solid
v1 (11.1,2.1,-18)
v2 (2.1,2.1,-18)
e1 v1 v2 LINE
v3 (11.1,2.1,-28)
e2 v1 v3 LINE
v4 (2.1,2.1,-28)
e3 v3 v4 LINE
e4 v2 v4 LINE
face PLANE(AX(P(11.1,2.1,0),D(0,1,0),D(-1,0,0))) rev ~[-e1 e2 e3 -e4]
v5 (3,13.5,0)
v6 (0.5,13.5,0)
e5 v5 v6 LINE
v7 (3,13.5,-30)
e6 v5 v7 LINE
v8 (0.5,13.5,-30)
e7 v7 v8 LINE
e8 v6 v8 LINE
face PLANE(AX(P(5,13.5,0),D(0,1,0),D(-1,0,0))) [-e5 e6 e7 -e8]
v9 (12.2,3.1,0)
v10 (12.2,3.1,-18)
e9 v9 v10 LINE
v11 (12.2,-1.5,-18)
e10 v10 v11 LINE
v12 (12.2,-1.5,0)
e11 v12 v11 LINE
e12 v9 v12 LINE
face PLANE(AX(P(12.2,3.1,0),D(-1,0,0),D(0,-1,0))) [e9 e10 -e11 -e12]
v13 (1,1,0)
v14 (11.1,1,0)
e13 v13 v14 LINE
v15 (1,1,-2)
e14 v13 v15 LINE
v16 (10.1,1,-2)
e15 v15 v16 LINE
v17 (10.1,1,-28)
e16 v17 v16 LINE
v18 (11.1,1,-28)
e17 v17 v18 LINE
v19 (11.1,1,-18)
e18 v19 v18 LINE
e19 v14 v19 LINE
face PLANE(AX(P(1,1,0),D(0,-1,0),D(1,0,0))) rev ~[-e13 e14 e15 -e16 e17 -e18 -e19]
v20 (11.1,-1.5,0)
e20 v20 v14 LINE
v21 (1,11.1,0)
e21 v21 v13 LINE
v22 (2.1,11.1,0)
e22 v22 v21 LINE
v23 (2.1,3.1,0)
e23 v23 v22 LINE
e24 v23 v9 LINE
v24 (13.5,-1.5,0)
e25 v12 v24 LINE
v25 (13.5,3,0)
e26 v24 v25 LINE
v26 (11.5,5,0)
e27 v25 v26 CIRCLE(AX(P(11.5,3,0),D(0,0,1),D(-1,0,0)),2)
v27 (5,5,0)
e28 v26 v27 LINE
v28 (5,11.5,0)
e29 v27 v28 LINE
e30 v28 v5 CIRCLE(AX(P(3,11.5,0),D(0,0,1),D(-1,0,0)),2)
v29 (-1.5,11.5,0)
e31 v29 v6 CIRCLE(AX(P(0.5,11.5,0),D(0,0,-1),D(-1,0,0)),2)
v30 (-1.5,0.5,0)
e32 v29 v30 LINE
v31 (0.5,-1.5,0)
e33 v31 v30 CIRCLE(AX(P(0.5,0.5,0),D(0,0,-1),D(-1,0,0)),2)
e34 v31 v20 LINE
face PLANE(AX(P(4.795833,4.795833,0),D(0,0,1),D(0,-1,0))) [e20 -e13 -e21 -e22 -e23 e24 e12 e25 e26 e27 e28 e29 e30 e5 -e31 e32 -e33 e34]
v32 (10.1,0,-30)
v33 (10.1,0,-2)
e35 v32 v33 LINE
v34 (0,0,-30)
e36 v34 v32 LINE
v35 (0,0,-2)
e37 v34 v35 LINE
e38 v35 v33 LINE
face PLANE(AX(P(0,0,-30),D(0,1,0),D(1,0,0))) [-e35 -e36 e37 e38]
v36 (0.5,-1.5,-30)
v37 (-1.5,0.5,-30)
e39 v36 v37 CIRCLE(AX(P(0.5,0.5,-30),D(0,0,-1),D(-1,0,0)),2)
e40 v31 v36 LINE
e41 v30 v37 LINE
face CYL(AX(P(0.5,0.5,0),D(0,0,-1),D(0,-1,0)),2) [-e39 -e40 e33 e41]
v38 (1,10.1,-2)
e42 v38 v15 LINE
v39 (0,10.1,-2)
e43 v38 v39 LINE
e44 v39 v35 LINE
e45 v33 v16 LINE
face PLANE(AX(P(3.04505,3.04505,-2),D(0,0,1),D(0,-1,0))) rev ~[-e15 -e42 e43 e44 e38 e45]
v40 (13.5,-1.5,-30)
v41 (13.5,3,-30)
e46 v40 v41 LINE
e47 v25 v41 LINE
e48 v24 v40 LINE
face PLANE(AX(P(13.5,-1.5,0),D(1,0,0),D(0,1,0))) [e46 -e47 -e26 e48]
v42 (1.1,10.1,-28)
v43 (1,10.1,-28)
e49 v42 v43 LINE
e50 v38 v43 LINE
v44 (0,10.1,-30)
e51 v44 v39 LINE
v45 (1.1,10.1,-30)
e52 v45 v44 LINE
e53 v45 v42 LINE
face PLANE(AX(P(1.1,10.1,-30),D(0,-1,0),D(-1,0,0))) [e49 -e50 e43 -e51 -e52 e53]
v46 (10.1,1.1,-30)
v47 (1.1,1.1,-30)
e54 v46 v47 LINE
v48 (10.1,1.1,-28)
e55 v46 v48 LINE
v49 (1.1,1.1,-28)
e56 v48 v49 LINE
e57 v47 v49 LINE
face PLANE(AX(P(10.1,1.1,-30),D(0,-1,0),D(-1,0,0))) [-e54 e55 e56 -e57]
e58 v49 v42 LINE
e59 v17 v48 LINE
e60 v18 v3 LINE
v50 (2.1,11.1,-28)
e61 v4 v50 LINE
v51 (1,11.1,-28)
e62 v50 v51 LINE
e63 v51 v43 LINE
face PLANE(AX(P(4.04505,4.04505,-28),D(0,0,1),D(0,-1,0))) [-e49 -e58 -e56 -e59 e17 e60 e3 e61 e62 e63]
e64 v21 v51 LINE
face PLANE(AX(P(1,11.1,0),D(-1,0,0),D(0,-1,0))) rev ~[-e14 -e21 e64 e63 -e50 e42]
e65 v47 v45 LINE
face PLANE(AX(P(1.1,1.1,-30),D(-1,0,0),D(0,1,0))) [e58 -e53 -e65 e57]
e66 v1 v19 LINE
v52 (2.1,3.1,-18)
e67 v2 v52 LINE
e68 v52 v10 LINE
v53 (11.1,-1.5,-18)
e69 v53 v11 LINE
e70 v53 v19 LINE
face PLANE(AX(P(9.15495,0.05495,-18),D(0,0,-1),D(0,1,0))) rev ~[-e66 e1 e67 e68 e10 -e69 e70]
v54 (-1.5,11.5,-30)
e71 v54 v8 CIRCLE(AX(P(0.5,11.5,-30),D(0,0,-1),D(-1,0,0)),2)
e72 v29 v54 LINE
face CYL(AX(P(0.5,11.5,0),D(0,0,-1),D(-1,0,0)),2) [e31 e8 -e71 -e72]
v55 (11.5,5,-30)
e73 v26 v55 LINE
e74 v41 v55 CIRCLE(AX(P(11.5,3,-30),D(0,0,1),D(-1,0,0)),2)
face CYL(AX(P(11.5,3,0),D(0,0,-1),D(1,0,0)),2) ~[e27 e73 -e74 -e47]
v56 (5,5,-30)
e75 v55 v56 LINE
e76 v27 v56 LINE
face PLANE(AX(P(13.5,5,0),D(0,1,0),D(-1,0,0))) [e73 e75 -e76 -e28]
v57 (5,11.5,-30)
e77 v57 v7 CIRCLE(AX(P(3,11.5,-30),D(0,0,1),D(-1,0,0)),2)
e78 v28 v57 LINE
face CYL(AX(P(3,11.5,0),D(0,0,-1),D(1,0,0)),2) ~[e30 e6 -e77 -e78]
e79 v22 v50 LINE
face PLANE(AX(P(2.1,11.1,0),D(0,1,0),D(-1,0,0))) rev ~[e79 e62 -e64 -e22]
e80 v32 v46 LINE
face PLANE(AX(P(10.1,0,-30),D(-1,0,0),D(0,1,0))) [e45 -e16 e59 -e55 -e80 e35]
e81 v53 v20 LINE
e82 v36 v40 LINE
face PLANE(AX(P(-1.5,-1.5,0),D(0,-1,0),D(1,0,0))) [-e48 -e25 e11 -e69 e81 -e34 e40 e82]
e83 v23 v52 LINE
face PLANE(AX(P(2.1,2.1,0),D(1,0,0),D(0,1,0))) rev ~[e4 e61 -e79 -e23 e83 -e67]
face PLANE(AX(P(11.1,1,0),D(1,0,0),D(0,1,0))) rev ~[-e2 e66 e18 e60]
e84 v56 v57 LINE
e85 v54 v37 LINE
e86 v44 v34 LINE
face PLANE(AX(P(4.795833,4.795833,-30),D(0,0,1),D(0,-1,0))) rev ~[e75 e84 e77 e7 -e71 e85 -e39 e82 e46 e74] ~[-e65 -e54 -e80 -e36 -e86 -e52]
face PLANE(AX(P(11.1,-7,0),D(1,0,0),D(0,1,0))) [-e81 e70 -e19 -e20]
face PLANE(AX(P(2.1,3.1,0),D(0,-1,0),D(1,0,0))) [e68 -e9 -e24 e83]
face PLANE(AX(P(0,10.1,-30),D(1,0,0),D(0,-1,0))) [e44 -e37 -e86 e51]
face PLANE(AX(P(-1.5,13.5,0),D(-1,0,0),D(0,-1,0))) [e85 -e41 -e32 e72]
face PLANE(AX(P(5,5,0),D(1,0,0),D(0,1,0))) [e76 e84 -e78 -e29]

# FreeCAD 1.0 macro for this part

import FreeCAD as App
import Part
import Sketcher
from FreeCAD import Vector


def edges_at(feature, points):
    """Names of the edges that pass closest to the given points."""
    edges = feature.Shape.Edges
    near = lambda p: min(range(len(edges)), key=lambda i: edges[i].distToShape(Part.Vertex(*p))[0])
    return sorted({f"Edge{near(p) + 1}" for p in points})


def add_polygon(sketch, points):
    """Adds a closed chain of lines whose ends are joined by coincident constraints."""
    first, n = sketch.GeometryCount, len(points)
    for a, b in zip(points, points[1:] + points[:1]):
        sketch.addGeometry(Part.LineSegment(App.Vector(*a, 0), App.Vector(*b, 0)), False)
    for i in range(n):
        sketch.addConstraint(Sketcher.Constraint("Coincident", first + i, 2, first + (i + 1) % n, 1))

doc = App.newDocument("Part")
params = doc.addObject("Spreadsheet::Sheet", "Params")
for row, (alias, value) in enumerate([
    ("sketch1_width", "15 mm"),
    ("sketch1_width2", "8.5 mm"),
    ("pad1_length", "30 mm"),
    ("sketch2_width", "9 mm"),
    ("sketch2_width2", "1.1 mm"),
    ("pocket1_length", "28 mm"),
    ("sketch3_width", "9 mm"),
    ("sketch3_width2", "1.1 mm"),
    ("pocket2_length", "28 mm"),
    ("sketch4_width", "9 mm"),
    ("sketch4_width2", "1.1 mm"),
    ("pocket3_length", "18 mm"),
    ("fillet_radius", "2 mm"),
], start=1):
    params.set(f"A{row}", alias)
    params.set(f"B{row}", "=" + value)
    params.setAlias(f"B{row}", alias)

body = doc.addObject("PartDesign::Body", "Body")

sketch1 = doc.addObject("Sketcher::SketchObject", "Sketch")
body.addObject(sketch1)
sketch1.AttachmentSupport = (doc.XY_Plane, [""])
sketch1.MapMode = "FlatFace"
add_polygon(sketch1, [(13.5, 5), (5, 5), (5, 13.5), (-1.5, 13.5), (-1.5, -1.5), (13.5, -1.5)])
sketch1.addConstraint(Sketcher.Constraint("Horizontal", 0))
sketch1.addConstraint(Sketcher.Constraint("Vertical", 1))
sketch1.addConstraint(Sketcher.Constraint("Horizontal", 2))
sketch1.addConstraint(Sketcher.Constraint("Vertical", 3))
sketch1.addConstraint(Sketcher.Constraint("Horizontal", 4))
sketch1.addConstraint(Sketcher.Constraint("Vertical", 5))
sketch1.addConstraint(Sketcher.Constraint("Equal", 0, 1))
sketch1.addConstraint(Sketcher.Constraint("Equal", 4, 3))
sketch1.addConstraint(Sketcher.Constraint("DistanceX", 4, 1, 4, 2, 15.0))
sketch1.addConstraint(Sketcher.Constraint("DistanceX", 0, 2, 0, 1, 8.5))
sketch1.addConstraint(Sketcher.Constraint("DistanceX", -1, 1, 0, 2, 5.0))
sketch1.addConstraint(Sketcher.Constraint("DistanceY", -1, 1, 0, 2, 5.0))
sketch1.setExpression("Constraints[14]", "Params.sketch1_width")
sketch1.setExpression("Constraints[15]", "Params.sketch1_width2")
pad1 = doc.addObject("PartDesign::Pad", "Pad")
body.addObject(pad1)
pad1.Profile = sketch1
pad1.setExpression("Length", "Params.pad1_length")

sketch2 = doc.addObject("Sketcher::SketchObject", "Sketch001")
body.addObject(sketch2)
sketch2.AttachmentSupport = (doc.XY_Plane, [""])
sketch2.MapMode = "FlatFace"
sketch2.AttachmentOffset = App.Placement(Vector(0, 0, 30), App.Rotation())
add_polygon(sketch2, [(1.1, 10.1), (0, 10.1), (0, 0), (10.1, 0), (10.1, 1.1), (1.1, 1.1)])
sketch2.addConstraint(Sketcher.Constraint("Horizontal", 0))
sketch2.addConstraint(Sketcher.Constraint("Vertical", 1))
sketch2.addConstraint(Sketcher.Constraint("Horizontal", 2))
sketch2.addConstraint(Sketcher.Constraint("Vertical", 3))
sketch2.addConstraint(Sketcher.Constraint("Horizontal", 4))
sketch2.addConstraint(Sketcher.Constraint("Vertical", 5))
sketch2.addConstraint(Sketcher.Constraint("Coincident", 1, 2, -1, 1))
sketch2.addConstraint(Sketcher.Constraint("Equal", 2, 1))
sketch2.addConstraint(Sketcher.Constraint("Equal", 0, 3))
sketch2.addConstraint(Sketcher.Constraint("DistanceX", 4, 2, 4, 1, 9.0))
sketch2.addConstraint(Sketcher.Constraint("DistanceX", 0, 2, 0, 1, 1.1))
sketch2.setExpression("Constraints[15]", "Params.sketch2_width")
sketch2.setExpression("Constraints[16]", "Params.sketch2_width2")
pocket1 = doc.addObject("PartDesign::Pocket", "Pocket")
body.addObject(pocket1)
pocket1.Profile = sketch2
pocket1.setExpression("Length", "Params.pocket1_length")

sketch3 = doc.addObject("Sketcher::SketchObject", "Sketch002")
body.addObject(sketch3)
sketch3.AttachmentSupport = (doc.XY_Plane, [""])
sketch3.MapMode = "FlatFace"
add_polygon(sketch3, [(2.1, 11.1), (1, 11.1), (1, 1), (11.1, 1), (11.1, 2.1), (2.1, 2.1)])
sketch3.addConstraint(Sketcher.Constraint("Horizontal", 0))
sketch3.addConstraint(Sketcher.Constraint("Vertical", 1))
sketch3.addConstraint(Sketcher.Constraint("Horizontal", 2))
sketch3.addConstraint(Sketcher.Constraint("Vertical", 3))
sketch3.addConstraint(Sketcher.Constraint("Horizontal", 4))
sketch3.addConstraint(Sketcher.Constraint("Vertical", 5))
sketch3.addConstraint(Sketcher.Constraint("Equal", 2, 1))
sketch3.addConstraint(Sketcher.Constraint("Equal", 0, 3))
sketch3.addConstraint(Sketcher.Constraint("DistanceX", 4, 2, 4, 1, 9.0))
sketch3.addConstraint(Sketcher.Constraint("DistanceX", 0, 2, 0, 1, 1.1))
sketch3.addConstraint(Sketcher.Constraint("DistanceX", -1, 1, 0, 2, 1.0))
sketch3.addConstraint(Sketcher.Constraint("DistanceY", -1, 1, 1, 2, 1.0))
sketch3.setExpression("Constraints[14]", "Params.sketch3_width")
sketch3.setExpression("Constraints[15]", "Params.sketch3_width2")
pocket2 = doc.addObject("PartDesign::Pocket", "Pocket001")
body.addObject(pocket2)
pocket2.Profile = sketch3
pocket2.setExpression("Length", "Params.pocket2_length")
pocket2.Reversed = True

sketch4 = doc.addObject("Sketcher::SketchObject", "Sketch003")
body.addObject(sketch4)
sketch4.AttachmentSupport = (doc.XY_Plane, [""])
sketch4.MapMode = "FlatFace"
add_polygon(sketch4, [(2, 2.1), (3.1, 2.1), (3.1, 12.2), (-7, 12.2), (-7, 11.1), (2, 11.1)])
sketch4.addConstraint(Sketcher.Constraint("Horizontal", 0))
sketch4.addConstraint(Sketcher.Constraint("Vertical", 1))
sketch4.addConstraint(Sketcher.Constraint("Horizontal", 2))
sketch4.addConstraint(Sketcher.Constraint("Vertical", 3))
sketch4.addConstraint(Sketcher.Constraint("Horizontal", 4))
sketch4.addConstraint(Sketcher.Constraint("Vertical", 5))
sketch4.addConstraint(Sketcher.Constraint("Equal", 2, 1))
sketch4.addConstraint(Sketcher.Constraint("Equal", 0, 3))
sketch4.addConstraint(Sketcher.Constraint("DistanceX", 4, 1, 4, 2, 9.0))
sketch4.addConstraint(Sketcher.Constraint("DistanceX", 0, 1, 0, 2, 1.1))
sketch4.addConstraint(Sketcher.Constraint("DistanceX", 2, 2, -1, 1, 7.0))
sketch4.addConstraint(Sketcher.Constraint("DistanceY", -1, 1, 0, 2, 2.1))
sketch4.setExpression("Constraints[14]", "Params.sketch4_width")
sketch4.setExpression("Constraints[15]", "Params.sketch4_width2")
pocket3 = doc.addObject("PartDesign::Pocket", "Pocket002")
body.addObject(pocket3)
pocket3.Profile = sketch4
pocket3.setExpression("Length", "Params.pocket3_length")
pocket3.Reversed = True
doc.recompute()

fillet = doc.addObject("PartDesign::Fillet", "Fillet")
body.addObject(fillet)
fillet.Base = (pocket3, edges_at(pocket3, [
    (13.5, -1.5, 15),
    (-1.5, -1.5, 15),
    (13.5, 5, 15),
    (5, 13.5, 15),
]))
fillet.setExpression("Radius", "Params.fillet_radius")
body2 = doc.addObject("PartDesign::Body", "Body001")
doc.recompute()

body.Placement = App.Placement(Vector(0, 0, 0), App.Rotation(Vector(1, 0, 0), 180))
boolean = doc.addObject("PartDesign::Boolean", "Boolean")
body2.addObject(boolean)
boolean.Type = "Fuse"
boolean.addObjects([body])
body3 = doc.addObject("PartDesign::Body", "Body002")
doc.recompute()

body2.Placement = App.Placement(Vector(0, 0, 0), App.Rotation(Vector(0, 0, 1), 90))
boolean2 = doc.addObject("PartDesign::Boolean", "Boolean001")
body3.addObject(boolean2)
boolean2.Type = "Fuse"
boolean2.addObjects([body2])

doc.recompute()
